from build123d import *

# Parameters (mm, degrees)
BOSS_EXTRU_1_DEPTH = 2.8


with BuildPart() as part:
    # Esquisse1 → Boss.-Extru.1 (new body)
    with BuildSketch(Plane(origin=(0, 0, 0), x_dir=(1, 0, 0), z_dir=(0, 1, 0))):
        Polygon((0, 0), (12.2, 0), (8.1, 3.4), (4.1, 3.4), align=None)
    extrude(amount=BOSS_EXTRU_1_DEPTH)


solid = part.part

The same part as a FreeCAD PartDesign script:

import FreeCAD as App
import Part
import Sketcher
from FreeCAD import Vector

doc = App.newDocument("Part")
params = doc.addObject("Spreadsheet::Sheet", "Params")
for row, (alias, value) in enumerate([
    ("sketch1_width", "4 mm"),
    ("sketch1_width2", "12.2 mm"),
    ("pad1_length", "2.8 mm"),
], start=1):
    params.set(f"A{row}", alias)
    params.set(f"B{row}", "=" + value)
    params.setAlias(f"B{row}", alias)

body = doc.addObject("PartDesign::Body", "Body")

# Sketch on XZ plane
sketch1 = body.newObject("Sketcher::SketchObject", "Sketch")
sketch1.AttachmentSupport = (doc.getObject("XZ_Plane"), [""])
sketch1.MapMode = "FlatFace"
sketch1.addGeometry([
    Part.LineSegment(Vector(0, 0, 0), Vector(12.2, 0, 0)),
    Part.LineSegment(Vector(12.2, 0, 0), Vector(8.1, -3.4, 0)),
    Part.LineSegment(Vector(8.1, -3.4, 0), Vector(4.1, -3.4, 0)),
    Part.LineSegment(Vector(4.1, -3.4, 0), Vector(0, 0, 0)),
], False)
sketch1.addConstraint([
    Sketcher.Constraint("Coincident", 0, 2, 1, 1),
    Sketcher.Constraint("Coincident", 1, 2, 2, 1),
    Sketcher.Constraint("Coincident", 2, 2, 3, 1),
    Sketcher.Constraint("Coincident", 3, 2, 0, 1),
    Sketcher.Constraint("Horizontal", 0),
    Sketcher.Constraint("Horizontal", 2),
    Sketcher.Constraint("Coincident", 3, 2, -1, 1),
    Sketcher.Constraint("Equal", 1, 3),
    Sketcher.Constraint("DistanceX", 2, 2, 2, 1, 4.0),
    Sketcher.Constraint("DistanceX", 0, 1, 0, 2, 12.2),
    Sketcher.Constraint("DistanceY", 1, 2, -1, 1, 3.4),
])
sketch1.setExpression("Constraints[8]", "Params.sketch1_width")
sketch1.setExpression("Constraints[9]", "Params.sketch1_width2")
pad1 = body.newObject("PartDesign::Pad", "Pad")
pad1.Profile = sketch1
pad1.setExpression("Length", "Params.pad1_length")
pad1.Reversed = True

doc.recompute()
